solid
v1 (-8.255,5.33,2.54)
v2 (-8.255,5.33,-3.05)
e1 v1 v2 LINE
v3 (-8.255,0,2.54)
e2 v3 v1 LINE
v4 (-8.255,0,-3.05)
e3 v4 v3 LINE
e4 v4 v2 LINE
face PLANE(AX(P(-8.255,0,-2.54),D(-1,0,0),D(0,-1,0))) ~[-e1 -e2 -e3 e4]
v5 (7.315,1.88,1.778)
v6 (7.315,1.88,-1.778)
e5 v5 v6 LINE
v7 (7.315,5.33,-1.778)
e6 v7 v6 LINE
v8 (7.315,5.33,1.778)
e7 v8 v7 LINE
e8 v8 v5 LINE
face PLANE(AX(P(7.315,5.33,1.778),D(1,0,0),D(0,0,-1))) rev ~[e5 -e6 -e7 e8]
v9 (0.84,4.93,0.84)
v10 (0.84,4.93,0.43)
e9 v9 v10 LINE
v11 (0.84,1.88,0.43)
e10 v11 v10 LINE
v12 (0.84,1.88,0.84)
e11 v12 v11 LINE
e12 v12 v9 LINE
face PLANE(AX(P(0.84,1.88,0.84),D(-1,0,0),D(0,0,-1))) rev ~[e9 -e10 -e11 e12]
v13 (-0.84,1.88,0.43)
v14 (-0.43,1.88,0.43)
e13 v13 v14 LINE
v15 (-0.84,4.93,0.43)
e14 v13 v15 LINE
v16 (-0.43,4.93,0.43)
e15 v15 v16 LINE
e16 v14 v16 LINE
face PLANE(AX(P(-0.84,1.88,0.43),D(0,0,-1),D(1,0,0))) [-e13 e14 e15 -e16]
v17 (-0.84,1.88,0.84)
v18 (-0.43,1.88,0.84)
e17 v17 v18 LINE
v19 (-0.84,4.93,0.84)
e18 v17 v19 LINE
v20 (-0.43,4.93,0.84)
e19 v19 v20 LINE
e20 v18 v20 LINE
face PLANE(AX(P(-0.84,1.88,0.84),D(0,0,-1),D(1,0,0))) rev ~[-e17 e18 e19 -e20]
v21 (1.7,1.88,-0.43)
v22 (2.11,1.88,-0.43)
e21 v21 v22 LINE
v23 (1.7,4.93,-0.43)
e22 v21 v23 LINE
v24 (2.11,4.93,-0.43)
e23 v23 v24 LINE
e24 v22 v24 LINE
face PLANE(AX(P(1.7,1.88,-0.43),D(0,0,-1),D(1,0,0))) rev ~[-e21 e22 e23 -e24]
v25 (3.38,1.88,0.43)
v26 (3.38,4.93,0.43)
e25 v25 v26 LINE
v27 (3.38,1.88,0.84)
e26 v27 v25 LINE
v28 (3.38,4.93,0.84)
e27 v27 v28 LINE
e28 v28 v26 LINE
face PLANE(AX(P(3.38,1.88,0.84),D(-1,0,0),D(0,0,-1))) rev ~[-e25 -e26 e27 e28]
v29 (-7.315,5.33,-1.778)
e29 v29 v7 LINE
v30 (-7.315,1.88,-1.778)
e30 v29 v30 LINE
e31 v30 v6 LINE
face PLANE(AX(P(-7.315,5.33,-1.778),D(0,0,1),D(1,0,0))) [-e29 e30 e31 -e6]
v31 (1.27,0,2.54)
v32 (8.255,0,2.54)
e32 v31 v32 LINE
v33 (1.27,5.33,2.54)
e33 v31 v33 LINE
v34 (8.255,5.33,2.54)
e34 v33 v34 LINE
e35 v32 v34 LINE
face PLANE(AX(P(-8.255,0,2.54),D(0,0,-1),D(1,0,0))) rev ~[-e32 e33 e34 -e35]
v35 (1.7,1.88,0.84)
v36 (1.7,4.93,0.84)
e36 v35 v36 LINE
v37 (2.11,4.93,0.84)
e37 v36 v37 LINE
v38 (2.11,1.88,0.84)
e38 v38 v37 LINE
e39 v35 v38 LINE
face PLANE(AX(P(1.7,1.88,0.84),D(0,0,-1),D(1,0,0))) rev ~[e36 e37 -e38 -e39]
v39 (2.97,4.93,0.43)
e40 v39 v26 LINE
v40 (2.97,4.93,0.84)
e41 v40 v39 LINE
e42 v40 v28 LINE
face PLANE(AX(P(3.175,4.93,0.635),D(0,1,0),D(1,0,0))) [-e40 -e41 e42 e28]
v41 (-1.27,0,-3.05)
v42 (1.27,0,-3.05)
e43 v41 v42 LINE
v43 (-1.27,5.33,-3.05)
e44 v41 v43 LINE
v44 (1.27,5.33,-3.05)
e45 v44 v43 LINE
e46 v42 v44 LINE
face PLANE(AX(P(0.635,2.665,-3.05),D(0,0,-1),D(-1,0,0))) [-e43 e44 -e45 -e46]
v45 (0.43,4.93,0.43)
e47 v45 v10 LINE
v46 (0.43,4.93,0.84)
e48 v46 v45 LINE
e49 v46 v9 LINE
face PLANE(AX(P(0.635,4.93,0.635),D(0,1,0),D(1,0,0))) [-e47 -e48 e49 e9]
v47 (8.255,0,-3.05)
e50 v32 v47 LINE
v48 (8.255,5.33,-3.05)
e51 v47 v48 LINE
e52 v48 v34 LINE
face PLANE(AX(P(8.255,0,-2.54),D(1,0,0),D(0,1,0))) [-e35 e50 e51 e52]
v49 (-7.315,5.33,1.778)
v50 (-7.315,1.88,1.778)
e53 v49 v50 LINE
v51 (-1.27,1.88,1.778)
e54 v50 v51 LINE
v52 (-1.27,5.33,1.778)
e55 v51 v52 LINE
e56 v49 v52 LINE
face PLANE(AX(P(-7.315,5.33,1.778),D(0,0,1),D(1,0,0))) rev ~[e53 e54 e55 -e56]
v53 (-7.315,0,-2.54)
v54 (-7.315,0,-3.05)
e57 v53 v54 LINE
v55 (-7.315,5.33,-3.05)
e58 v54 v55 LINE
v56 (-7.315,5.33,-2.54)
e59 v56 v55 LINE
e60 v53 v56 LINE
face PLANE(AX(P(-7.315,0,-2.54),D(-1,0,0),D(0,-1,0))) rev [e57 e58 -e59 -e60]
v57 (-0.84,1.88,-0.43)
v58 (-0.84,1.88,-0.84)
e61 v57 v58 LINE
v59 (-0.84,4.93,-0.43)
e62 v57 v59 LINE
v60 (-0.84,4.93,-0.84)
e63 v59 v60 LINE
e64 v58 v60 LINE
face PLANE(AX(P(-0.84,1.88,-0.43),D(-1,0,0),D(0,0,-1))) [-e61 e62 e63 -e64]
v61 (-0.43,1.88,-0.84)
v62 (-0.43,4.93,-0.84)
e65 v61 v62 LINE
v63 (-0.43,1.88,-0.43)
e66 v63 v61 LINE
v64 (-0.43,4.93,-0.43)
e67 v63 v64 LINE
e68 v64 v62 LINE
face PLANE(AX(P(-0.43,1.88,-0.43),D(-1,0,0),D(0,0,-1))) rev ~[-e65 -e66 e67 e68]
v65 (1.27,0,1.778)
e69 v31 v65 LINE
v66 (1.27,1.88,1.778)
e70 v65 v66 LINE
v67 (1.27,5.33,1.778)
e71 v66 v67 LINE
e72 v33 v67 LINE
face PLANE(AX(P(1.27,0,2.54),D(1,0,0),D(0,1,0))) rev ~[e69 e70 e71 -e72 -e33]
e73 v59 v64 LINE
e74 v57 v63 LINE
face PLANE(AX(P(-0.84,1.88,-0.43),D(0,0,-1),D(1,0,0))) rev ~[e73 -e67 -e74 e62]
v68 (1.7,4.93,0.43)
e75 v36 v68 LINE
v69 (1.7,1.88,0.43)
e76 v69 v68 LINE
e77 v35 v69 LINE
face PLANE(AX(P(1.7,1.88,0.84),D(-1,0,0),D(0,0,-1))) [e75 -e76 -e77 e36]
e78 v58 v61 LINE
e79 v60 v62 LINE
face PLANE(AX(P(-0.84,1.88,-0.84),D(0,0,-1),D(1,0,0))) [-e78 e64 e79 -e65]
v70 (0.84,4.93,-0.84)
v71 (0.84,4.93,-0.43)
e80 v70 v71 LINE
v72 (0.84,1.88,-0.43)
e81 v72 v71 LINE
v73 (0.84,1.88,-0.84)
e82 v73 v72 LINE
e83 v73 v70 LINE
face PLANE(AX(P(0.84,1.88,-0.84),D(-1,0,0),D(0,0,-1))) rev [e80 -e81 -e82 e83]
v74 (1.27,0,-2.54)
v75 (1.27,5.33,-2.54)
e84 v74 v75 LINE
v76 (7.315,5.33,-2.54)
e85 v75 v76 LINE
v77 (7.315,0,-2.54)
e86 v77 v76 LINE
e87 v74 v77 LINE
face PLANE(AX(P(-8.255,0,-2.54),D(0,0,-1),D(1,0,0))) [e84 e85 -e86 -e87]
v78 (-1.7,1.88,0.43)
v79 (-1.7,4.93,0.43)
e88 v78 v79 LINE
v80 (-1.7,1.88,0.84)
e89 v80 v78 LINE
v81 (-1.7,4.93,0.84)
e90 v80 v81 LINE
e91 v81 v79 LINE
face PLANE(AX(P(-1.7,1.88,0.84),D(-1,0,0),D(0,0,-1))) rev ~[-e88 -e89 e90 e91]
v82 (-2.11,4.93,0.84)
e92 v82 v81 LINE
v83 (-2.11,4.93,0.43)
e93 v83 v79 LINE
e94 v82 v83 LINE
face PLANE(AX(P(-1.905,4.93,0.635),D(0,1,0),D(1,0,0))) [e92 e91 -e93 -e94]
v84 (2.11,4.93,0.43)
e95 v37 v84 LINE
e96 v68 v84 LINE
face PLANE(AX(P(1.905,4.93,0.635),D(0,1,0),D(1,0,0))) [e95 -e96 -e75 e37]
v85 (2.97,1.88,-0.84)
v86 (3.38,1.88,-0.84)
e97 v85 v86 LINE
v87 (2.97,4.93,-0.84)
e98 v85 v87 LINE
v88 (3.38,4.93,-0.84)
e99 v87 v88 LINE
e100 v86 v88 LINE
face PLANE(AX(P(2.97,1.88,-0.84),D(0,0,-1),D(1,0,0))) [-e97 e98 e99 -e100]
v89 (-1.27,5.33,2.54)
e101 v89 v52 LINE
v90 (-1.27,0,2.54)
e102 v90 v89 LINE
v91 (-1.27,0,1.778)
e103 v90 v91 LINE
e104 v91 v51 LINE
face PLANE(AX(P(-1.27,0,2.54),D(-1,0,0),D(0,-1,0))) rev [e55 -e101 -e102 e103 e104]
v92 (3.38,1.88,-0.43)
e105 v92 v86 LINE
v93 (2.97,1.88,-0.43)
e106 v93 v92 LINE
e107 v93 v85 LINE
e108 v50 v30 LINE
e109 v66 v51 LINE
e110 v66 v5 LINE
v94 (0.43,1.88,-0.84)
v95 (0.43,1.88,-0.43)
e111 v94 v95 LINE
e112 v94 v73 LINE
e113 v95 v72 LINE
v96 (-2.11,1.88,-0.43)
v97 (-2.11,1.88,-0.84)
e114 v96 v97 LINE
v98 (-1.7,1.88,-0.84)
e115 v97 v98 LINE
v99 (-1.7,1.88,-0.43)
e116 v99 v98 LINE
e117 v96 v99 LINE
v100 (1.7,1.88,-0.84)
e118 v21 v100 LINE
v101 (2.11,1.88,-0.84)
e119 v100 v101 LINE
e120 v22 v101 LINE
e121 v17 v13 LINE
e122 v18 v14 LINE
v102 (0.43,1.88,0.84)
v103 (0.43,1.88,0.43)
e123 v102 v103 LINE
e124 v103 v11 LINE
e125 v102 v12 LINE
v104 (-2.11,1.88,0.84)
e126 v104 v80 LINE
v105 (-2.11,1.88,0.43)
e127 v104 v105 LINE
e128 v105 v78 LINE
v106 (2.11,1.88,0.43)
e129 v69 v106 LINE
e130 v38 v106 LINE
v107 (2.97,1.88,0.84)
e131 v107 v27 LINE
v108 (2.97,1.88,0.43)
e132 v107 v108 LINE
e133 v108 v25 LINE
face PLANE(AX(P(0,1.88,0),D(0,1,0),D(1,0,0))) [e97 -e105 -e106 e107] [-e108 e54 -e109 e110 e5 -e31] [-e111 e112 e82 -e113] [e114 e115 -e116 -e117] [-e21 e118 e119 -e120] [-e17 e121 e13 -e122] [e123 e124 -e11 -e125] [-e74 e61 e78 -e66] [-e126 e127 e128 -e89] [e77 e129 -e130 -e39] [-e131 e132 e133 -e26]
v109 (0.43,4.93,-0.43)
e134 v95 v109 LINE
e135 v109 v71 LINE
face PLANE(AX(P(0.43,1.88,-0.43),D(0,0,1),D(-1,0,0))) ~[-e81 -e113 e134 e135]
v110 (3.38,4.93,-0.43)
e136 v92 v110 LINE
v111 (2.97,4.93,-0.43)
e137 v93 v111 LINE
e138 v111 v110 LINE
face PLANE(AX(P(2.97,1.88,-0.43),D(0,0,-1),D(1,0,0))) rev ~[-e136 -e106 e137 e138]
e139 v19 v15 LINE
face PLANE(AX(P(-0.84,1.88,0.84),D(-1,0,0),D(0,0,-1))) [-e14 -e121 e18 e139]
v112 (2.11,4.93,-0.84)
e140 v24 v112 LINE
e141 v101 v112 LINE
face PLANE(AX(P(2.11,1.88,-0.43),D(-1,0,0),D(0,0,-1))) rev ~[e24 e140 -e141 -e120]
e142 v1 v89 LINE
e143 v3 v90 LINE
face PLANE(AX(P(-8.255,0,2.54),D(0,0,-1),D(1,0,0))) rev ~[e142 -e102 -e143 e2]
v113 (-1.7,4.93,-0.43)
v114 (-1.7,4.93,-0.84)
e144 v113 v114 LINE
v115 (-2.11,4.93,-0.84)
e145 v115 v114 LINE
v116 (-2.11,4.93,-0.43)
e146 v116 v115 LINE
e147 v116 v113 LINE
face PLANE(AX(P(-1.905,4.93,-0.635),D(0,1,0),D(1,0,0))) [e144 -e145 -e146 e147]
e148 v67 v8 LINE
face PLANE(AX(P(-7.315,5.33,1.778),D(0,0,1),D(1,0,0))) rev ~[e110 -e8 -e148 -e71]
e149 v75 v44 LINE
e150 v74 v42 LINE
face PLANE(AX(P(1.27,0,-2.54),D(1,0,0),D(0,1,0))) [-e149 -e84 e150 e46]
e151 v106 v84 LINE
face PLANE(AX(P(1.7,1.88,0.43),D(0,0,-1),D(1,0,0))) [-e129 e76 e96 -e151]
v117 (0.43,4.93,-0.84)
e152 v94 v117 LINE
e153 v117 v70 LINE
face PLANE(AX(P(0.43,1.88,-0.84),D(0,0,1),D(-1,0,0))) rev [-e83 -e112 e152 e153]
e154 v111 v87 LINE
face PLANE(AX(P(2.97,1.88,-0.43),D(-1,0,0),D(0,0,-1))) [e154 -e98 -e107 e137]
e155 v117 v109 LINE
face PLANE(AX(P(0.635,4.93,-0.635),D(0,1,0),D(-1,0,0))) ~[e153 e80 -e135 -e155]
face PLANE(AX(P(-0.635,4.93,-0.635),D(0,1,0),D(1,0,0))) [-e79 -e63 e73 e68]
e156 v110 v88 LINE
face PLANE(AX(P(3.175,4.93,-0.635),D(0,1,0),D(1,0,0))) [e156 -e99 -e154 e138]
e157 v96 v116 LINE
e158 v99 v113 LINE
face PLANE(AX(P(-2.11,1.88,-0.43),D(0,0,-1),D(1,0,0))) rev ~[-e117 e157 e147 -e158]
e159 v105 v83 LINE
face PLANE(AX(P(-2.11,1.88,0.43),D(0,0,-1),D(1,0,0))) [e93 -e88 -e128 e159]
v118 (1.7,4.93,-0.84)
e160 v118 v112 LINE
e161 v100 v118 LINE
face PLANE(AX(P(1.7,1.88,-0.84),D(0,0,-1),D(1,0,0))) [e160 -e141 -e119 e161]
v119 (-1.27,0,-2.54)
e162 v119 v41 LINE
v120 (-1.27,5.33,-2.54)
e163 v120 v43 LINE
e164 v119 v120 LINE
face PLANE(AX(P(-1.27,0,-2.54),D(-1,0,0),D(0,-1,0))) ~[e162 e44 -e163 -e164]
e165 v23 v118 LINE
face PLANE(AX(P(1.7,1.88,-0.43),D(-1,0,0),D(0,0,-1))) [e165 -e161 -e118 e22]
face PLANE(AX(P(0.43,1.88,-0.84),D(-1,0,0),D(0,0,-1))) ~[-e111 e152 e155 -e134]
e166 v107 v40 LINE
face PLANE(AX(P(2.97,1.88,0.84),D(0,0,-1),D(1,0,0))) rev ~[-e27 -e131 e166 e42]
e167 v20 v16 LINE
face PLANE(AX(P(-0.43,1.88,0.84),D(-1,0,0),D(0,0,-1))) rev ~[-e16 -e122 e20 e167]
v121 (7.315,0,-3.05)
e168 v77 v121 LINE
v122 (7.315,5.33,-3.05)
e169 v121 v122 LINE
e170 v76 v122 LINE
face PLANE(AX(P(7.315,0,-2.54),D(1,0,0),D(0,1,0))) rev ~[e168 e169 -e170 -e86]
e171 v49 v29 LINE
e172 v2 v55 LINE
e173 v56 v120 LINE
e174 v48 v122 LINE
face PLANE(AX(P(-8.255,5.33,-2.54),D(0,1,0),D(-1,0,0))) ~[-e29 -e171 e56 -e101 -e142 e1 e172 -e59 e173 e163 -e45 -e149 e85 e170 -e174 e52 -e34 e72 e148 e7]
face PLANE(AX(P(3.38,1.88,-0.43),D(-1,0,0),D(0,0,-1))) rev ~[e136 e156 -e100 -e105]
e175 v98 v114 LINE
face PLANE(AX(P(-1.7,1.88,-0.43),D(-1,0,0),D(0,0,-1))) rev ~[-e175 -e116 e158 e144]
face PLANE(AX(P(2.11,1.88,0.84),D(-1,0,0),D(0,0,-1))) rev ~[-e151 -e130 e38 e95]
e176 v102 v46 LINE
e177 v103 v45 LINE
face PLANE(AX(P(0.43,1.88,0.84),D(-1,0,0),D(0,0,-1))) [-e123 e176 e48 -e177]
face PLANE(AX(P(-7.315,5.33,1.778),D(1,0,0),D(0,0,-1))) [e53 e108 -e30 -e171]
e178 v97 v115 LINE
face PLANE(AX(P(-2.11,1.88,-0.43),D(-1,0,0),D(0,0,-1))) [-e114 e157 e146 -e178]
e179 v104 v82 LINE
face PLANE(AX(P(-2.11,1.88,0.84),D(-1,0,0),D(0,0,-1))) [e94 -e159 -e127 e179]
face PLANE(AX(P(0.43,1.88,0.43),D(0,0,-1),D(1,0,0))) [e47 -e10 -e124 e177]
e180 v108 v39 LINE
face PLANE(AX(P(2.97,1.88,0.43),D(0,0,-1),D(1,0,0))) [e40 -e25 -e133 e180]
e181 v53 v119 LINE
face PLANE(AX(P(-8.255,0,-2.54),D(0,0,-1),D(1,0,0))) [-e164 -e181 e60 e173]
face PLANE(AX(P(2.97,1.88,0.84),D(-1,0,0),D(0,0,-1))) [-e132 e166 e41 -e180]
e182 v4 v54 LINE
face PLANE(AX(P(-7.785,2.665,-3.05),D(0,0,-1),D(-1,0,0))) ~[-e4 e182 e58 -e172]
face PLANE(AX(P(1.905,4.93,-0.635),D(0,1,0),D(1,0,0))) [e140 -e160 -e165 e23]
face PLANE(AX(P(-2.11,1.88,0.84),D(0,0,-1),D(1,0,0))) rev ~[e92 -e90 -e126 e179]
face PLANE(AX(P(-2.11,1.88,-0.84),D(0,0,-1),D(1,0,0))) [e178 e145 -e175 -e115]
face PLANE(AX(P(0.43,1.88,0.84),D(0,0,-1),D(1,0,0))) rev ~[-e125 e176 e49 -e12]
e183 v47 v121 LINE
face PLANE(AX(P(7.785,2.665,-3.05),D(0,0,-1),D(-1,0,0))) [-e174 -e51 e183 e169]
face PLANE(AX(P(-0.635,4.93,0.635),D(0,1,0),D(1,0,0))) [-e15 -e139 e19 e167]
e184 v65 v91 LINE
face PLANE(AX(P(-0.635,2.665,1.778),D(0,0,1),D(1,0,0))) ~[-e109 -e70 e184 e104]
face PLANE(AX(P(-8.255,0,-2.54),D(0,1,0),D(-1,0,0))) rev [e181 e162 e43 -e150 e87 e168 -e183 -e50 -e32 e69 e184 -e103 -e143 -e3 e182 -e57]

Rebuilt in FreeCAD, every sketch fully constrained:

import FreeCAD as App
import Part
import Sketcher
from FreeCAD import Vector
Q = App.Units.Quantity


def add_polygon(sketch, points):
    """Adds a closed chain of lines whose ends are joined by coincident constraints."""
    first, n = sketch.GeometryCount, len(points)
    for a, b in zip(points, points[1:] + points[:1]):
        sketch.addGeometry(Part.LineSegment(App.Vector(*a, 0), App.Vector(*b, 0)), False)
    for i in range(n):
        sketch.addConstraint(Sketcher.Constraint("Coincident", first + i, 2, first + (i + 1) % n, 1))

doc = App.newDocument("Part")
body = doc.addObject("PartDesign::Body", "Body")

sketch1 = body.newObject("Sketcher::SketchObject", "Sketch")
sketch1.AttachmentSupport = (doc.getObject("XZ_Plane"), [""])
sketch1.MapMode = "FlatFace"
add_polygon(sketch1, [(-8, -3), (-8, 3), (8, 3), (8, -3)])
sketch1.addConstraint(Sketcher.Constraint("Vertical", 0))
sketch1.addConstraint(Sketcher.Constraint("Horizontal", 1))
sketch1.addConstraint(Sketcher.Constraint("Vertical", 2))
sketch1.addConstraint(Sketcher.Constraint("Horizontal", 3))
sketch1.addConstraint(Sketcher.Constraint("Symmetric", 0, 2, 2, 2, -1, 1))
sketch1.addConstraint(Sketcher.Constraint("DistanceY", 0, 1, 0, 2, Q("0.2 in")))
sketch1.addConstraint(Sketcher.Constraint("DistanceX", 1, 1, 1, 2, Q("0.65 in")))
pad1 = body.newObject("PartDesign::Pad", "Pad")
pad1.Profile = sketch1
pad1.Length = 5.33
pad1.Reversed = True

sketch2 = body.newObject("Sketcher::SketchObject", "Sketch001")
sketch2.AttachmentSupport = (doc.getObject("XZ_Plane"), [""])
sketch2.MapMode = "FlatFace"
sketch2.AttachmentOffset = App.Placement(Vector(0, 0, -5.33), App.Rotation())
add_polygon(sketch2, [(-7.3, -1.8), (-7.3, 1.8), (7.3, 1.8), (7.3, -1.8)])
sketch2.addConstraint(Sketcher.Constraint("Vertical", 0))
sketch2.addConstraint(Sketcher.Constraint("Horizontal", 1))
sketch2.addConstraint(Sketcher.Constraint("Vertical", 2))
sketch2.addConstraint(Sketcher.Constraint("Horizontal", 3))
sketch2.addConstraint(Sketcher.Constraint("Symmetric", 0, 2, 2, 2, -1, 1))
sketch2.addConstraint(Sketcher.Constraint("DistanceY", 0, 1, 0, 2, Q("0.14 in")))
sketch2.addConstraint(Sketcher.Constraint("DistanceX", 1, 1, 1, 2, 14.63))
pocket1 = body.newObject("PartDesign::Pocket", "Pocket")
pocket1.Profile = sketch2
pocket1.Length = 3.45
pocket1.Reversed = True

sketch3 = body.newObject("Sketcher::SketchObject", "Sketch002")
sketch3.AttachmentSupport = (doc.getObject("XY_Plane"), [""])
sketch3.MapMode = "FlatFace"
sketch3.AttachmentOffset = App.Placement(Vector(0, 0, -0.1 * 25.4), App.Rotation())
add_polygon(sketch3, [(8.3, 5.3), (8.3, 0), (7.3, 0), (7.3, 5.3)])
add_polygon(sketch3, [(1.3, 5.3), (1.3, 0), (0, 0), (0, 5.3)])
sketch3.addConstraint(Sketcher.Constraint("Vertical", 0))
sketch3.addConstraint(Sketcher.Constraint("Horizontal", 1))
sketch3.addConstraint(Sketcher.Constraint("Vertical", 2))
sketch3.addConstraint(Sketcher.Constraint("Horizontal", 3))
sketch3.addConstraint(Sketcher.Constraint("Vertical", 4))
sketch3.addConstraint(Sketcher.Constraint("Horizontal", 5))
sketch3.addConstraint(Sketcher.Constraint("Vertical", 6))
sketch3.addConstraint(Sketcher.Constraint("Horizontal", 7))
sketch3.addConstraint(Sketcher.Constraint("Coincident", 5, 2, -1, 1))
sketch3.addConstraint(Sketcher.Constraint("PointOnObject", 0, 2, -1))
sketch3.addConstraint(Sketcher.Constraint("Horizontal", 3, 2, 6, 2))
sketch3.addConstraint(Sketcher.Constraint("DistanceX", 5, 2, 5, 1, Q("0.05 in")))
sketch3.addConstraint(Sketcher.Constraint("DistanceX", -1, 1, 0, 2, Q("0.325 in")))
sketch3.addConstraint(Sketcher.Constraint("DistanceX", 1, 2, 1, 1, 0.94))
sketch3.addConstraint(Sketcher.Constraint("DistanceY", 0, 2, 0, 1, 5.33))
pad2 = body.newObject("PartDesign::Pad", "Pad001")
pad2.Profile = sketch3
pad2.Length = 0.51
pad2.Reversed = True

sketch4 = body.newObject("Sketcher::SketchObject", "Sketch003")
sketch4.AttachmentSupport = (doc.getObject("XY_Plane"), [""])
sketch4.MapMode = "FlatFace"
sketch4.AttachmentOffset = App.Placement(Vector(0, 0, 0.1 * 25.4), App.Rotation())
add_polygon(sketch4, [(0, 5.3), (0, 0), (1.3, 0), (1.3, 5.3)])
sketch4.addConstraint(Sketcher.Constraint("Vertical", 0))
sketch4.addConstraint(Sketcher.Constraint("Horizontal", 1))
sketch4.addConstraint(Sketcher.Constraint("Vertical", 2))
sketch4.addConstraint(Sketcher.Constraint("Horizontal", 3))
sketch4.addConstraint(Sketcher.Constraint("Coincident", 0, 2, -1, 1))
sketch4.addConstraint(Sketcher.Constraint("DistanceX", 1, 1, 1, 2, Q("0.05 in")))
sketch4.addConstraint(Sketcher.Constraint("DistanceY", 0, 2, 0, 1, 5.33))
pocket2 = body.newObject("PartDesign::Pocket", "Pocket001")
pocket2.Profile = sketch4
pocket2.Length = Q("0.03 in")
doc.recompute()

mirrored = body.newObject("PartDesign::Mirrored", "Mirrored")
mirrored.Originals = [pocket1, pad2, pocket2]
mirrored.MirrorPlane = (doc.getObject("YZ_Plane"), [""])
body.Tip = mirrored

sketch5 = body.newObject("Sketcher::SketchObject", "Sketch004")
sketch5.AttachmentSupport = (doc.getObject("XZ_Plane"), [""])
sketch5.MapMode = "FlatFace"
sketch5.AttachmentOffset = App.Placement(Vector(0, 0, -1.88), App.Rotation())
add_polygon(sketch5, [(0.43, 0.43), (0.43, 0.84), (0.84, 0.84), (0.84, 0.43)])
sketch5.addConstraint(Sketcher.Constraint("Vertical", 0))
sketch5.addConstraint(Sketcher.Constraint("Horizontal", 1))
sketch5.addConstraint(Sketcher.Constraint("Vertical", 2))
sketch5.addConstraint(Sketcher.Constraint("Horizontal", 3))
sketch5.addConstraint(Sketcher.Constraint("Equal", 3, 0))
sketch5.addConstraint(Sketcher.Constraint("DistanceX", 1, 1, 1, 2, 0.41))
sketch5.addConstraint(Sketcher.Constraint("DistanceX", -1, 1, 0, 2, 0.43))
sketch5.addConstraint(Sketcher.Constraint("DistanceY", -1, 1, 0, 2, 0.84))
pad3 = body.newObject("PartDesign::Pad", "Pad002")
pad3.Profile = sketch5
pad3.Length = 3.05
pad3.Reversed = True
doc.recompute()

linearpattern = body.newObject("PartDesign::LinearPattern", "LinearPattern")
linearpattern.Originals = [pad3]
linearpattern.Direction = (doc.getObject("X_Axis"), [""])
linearpattern.Mode = "offset"
linearpattern.Offset = Q("0.05 in")
linearpattern.Occurrences = 3
body.Tip = linearpattern
doc.recompute()

linearpattern2 = body.newObject("PartDesign::LinearPattern", "LinearPattern001")
linearpattern2.Originals = [pad3]
linearpattern2.Direction = (doc.getObject("X_Axis"), [""])
linearpattern2.Mode = "offset"
linearpattern2.Offset = Q("0.05 in")
linearpattern2.Occurrences = 3
linearpattern2.Reversed = True
body.Tip = linearpattern2
doc.recompute()

mirrored2 = body.newObject("PartDesign::Mirrored", "Mirrored001")
mirrored2.Originals = [pad3]
mirrored2.MirrorPlane = (doc.getObject("XY_Plane"), [""])
body.Tip = mirrored2

sketch6 = body.newObject("Sketcher::SketchObject", "Sketch005")
sketch6.AttachmentSupport = (doc.getObject("XZ_Plane"), [""])
sketch6.MapMode = "FlatFace"
sketch6.AttachmentOffset = App.Placement(Vector(0, 0, -1.88), App.Rotation())
add_polygon(sketch6, [(1.7, -0.84), (1.7, -0.43), (2.11, -0.43), (2.11, -0.84)])
sketch6.addConstraint(Sketcher.Constraint("Vertical", 0))
sketch6.addConstraint(Sketcher.Constraint("Horizontal", 1))
sketch6.addConstraint(Sketcher.Constraint("Vertical", 2))
sketch6.addConstraint(Sketcher.Constraint("Horizontal", 3))
sketch6.addConstraint(Sketcher.Constraint("Equal", 3, 0))
sketch6.addConstraint(Sketcher.Constraint("DistanceX", 1, 1, 1, 2, 0.41))
sketch6.addConstraint(Sketcher.Constraint("DistanceX", -1, 1, 0, 2, 1.7))
sketch6.addConstraint(Sketcher.Constraint("DistanceY", 0, 2, -1, 1, 0.43))
pad4 = body.newObject("PartDesign::Pad", "Pad003")
pad4.Profile = sketch6
pad4.Length = 3.05
pad4.Reversed = True

sketch7 = body.newObject("Sketcher::SketchObject", "Sketch006")
sketch7.AttachmentSupport = (doc.getObject("XZ_Plane"), [""])
sketch7.MapMode = "FlatFace"
sketch7.AttachmentOffset = App.Placement(Vector(0, 0, -1.88), App.Rotation())
add_polygon(sketch7, [(2.97, -0.84), (2.97, -0.43), (3.38, -0.43), (3.38, -0.84)])
sketch7.addConstraint(Sketcher.Constraint("Vertical", 0))
sketch7.addConstraint(Sketcher.Constraint("Horizontal", 1))
sketch7.addConstraint(Sketcher.Constraint("Vertical", 2))
sketch7.addConstraint(Sketcher.Constraint("Horizontal", 3))
sketch7.addConstraint(Sketcher.Constraint("Equal", 3, 0))
sketch7.addConstraint(Sketcher.Constraint("DistanceX", 1, 1, 1, 2, 0.41))
sketch7.addConstraint(Sketcher.Constraint("DistanceX", -1, 1, 0, 2, 2.97))
sketch7.addConstraint(Sketcher.Constraint("DistanceY", 0, 2, -1, 1, 0.43))
pad5 = body.newObject("PartDesign::Pad", "Pad004")
pad5.Profile = sketch7
pad5.Length = 3.05
pad5.Reversed = True

sketch8 = body.newObject("Sketcher::SketchObject", "Sketch007")
sketch8.AttachmentSupport = (doc.getObject("XZ_Plane"), [""])
sketch8.MapMode = "FlatFace"
sketch8.AttachmentOffset = App.Placement(Vector(0, 0, -1.88), App.Rotation())
add_polygon(sketch8, [(-0.84, -0.84), (-0.84, -0.43), (-0.43, -0.43), (-0.43, -0.84)])
sketch8.addConstraint(Sketcher.Constraint("Vertical", 0))
sketch8.addConstraint(Sketcher.Constraint("Horizontal", 1))
sketch8.addConstraint(Sketcher.Constraint("Vertical", 2))
sketch8.addConstraint(Sketcher.Constraint("Horizontal", 3))
sketch8.addConstraint(Sketcher.Constraint("Equal", 3, 0))
sketch8.addConstraint(Sketcher.Constraint("DistanceX", 1, 1, 1, 2, 0.41))
sketch8.addConstraint(Sketcher.Constraint("DistanceX", 0, 2, -1, 1, 0.84))
sketch8.addConstraint(Sketcher.Constraint("DistanceY", 0, 2, -1, 1, 0.43))
pad6 = body.newObject("PartDesign::Pad", "Pad005")
pad6.Profile = sketch8
pad6.Length = 3.05
pad6.Reversed = True

sketch9 = body.newObject("Sketcher::SketchObject", "Sketch008")
sketch9.AttachmentSupport = (doc.getObject("XZ_Plane"), [""])
sketch9.MapMode = "FlatFace"
sketch9.AttachmentOffset = App.Placement(Vector(0, 0, -1.88), App.Rotation())
add_polygon(sketch9, [(-2.11, -0.84), (-2.11, -0.43), (-1.7, -0.43), (-1.7, -0.84)])
sketch9.addConstraint(Sketcher.Constraint("Vertical", 0))
sketch9.addConstraint(Sketcher.Constraint("Horizontal", 1))
sketch9.addConstraint(Sketcher.Constraint("Vertical", 2))
sketch9.addConstraint(Sketcher.Constraint("Horizontal", 3))
sketch9.addConstraint(Sketcher.Constraint("Equal", 3, 0))
sketch9.addConstraint(Sketcher.Constraint("DistanceX", 1, 1, 1, 2, 0.41))
sketch9.addConstraint(Sketcher.Constraint("DistanceX", 0, 2, -1, 1, 2.11))
sketch9.addConstraint(Sketcher.Constraint("DistanceY", 0, 2, -1, 1, 0.43))
pad7 = body.newObject("PartDesign::Pad", "Pad006")
pad7.Profile = sketch9
pad7.Length = 3.05
pad7.Reversed = True

doc.recompute()
